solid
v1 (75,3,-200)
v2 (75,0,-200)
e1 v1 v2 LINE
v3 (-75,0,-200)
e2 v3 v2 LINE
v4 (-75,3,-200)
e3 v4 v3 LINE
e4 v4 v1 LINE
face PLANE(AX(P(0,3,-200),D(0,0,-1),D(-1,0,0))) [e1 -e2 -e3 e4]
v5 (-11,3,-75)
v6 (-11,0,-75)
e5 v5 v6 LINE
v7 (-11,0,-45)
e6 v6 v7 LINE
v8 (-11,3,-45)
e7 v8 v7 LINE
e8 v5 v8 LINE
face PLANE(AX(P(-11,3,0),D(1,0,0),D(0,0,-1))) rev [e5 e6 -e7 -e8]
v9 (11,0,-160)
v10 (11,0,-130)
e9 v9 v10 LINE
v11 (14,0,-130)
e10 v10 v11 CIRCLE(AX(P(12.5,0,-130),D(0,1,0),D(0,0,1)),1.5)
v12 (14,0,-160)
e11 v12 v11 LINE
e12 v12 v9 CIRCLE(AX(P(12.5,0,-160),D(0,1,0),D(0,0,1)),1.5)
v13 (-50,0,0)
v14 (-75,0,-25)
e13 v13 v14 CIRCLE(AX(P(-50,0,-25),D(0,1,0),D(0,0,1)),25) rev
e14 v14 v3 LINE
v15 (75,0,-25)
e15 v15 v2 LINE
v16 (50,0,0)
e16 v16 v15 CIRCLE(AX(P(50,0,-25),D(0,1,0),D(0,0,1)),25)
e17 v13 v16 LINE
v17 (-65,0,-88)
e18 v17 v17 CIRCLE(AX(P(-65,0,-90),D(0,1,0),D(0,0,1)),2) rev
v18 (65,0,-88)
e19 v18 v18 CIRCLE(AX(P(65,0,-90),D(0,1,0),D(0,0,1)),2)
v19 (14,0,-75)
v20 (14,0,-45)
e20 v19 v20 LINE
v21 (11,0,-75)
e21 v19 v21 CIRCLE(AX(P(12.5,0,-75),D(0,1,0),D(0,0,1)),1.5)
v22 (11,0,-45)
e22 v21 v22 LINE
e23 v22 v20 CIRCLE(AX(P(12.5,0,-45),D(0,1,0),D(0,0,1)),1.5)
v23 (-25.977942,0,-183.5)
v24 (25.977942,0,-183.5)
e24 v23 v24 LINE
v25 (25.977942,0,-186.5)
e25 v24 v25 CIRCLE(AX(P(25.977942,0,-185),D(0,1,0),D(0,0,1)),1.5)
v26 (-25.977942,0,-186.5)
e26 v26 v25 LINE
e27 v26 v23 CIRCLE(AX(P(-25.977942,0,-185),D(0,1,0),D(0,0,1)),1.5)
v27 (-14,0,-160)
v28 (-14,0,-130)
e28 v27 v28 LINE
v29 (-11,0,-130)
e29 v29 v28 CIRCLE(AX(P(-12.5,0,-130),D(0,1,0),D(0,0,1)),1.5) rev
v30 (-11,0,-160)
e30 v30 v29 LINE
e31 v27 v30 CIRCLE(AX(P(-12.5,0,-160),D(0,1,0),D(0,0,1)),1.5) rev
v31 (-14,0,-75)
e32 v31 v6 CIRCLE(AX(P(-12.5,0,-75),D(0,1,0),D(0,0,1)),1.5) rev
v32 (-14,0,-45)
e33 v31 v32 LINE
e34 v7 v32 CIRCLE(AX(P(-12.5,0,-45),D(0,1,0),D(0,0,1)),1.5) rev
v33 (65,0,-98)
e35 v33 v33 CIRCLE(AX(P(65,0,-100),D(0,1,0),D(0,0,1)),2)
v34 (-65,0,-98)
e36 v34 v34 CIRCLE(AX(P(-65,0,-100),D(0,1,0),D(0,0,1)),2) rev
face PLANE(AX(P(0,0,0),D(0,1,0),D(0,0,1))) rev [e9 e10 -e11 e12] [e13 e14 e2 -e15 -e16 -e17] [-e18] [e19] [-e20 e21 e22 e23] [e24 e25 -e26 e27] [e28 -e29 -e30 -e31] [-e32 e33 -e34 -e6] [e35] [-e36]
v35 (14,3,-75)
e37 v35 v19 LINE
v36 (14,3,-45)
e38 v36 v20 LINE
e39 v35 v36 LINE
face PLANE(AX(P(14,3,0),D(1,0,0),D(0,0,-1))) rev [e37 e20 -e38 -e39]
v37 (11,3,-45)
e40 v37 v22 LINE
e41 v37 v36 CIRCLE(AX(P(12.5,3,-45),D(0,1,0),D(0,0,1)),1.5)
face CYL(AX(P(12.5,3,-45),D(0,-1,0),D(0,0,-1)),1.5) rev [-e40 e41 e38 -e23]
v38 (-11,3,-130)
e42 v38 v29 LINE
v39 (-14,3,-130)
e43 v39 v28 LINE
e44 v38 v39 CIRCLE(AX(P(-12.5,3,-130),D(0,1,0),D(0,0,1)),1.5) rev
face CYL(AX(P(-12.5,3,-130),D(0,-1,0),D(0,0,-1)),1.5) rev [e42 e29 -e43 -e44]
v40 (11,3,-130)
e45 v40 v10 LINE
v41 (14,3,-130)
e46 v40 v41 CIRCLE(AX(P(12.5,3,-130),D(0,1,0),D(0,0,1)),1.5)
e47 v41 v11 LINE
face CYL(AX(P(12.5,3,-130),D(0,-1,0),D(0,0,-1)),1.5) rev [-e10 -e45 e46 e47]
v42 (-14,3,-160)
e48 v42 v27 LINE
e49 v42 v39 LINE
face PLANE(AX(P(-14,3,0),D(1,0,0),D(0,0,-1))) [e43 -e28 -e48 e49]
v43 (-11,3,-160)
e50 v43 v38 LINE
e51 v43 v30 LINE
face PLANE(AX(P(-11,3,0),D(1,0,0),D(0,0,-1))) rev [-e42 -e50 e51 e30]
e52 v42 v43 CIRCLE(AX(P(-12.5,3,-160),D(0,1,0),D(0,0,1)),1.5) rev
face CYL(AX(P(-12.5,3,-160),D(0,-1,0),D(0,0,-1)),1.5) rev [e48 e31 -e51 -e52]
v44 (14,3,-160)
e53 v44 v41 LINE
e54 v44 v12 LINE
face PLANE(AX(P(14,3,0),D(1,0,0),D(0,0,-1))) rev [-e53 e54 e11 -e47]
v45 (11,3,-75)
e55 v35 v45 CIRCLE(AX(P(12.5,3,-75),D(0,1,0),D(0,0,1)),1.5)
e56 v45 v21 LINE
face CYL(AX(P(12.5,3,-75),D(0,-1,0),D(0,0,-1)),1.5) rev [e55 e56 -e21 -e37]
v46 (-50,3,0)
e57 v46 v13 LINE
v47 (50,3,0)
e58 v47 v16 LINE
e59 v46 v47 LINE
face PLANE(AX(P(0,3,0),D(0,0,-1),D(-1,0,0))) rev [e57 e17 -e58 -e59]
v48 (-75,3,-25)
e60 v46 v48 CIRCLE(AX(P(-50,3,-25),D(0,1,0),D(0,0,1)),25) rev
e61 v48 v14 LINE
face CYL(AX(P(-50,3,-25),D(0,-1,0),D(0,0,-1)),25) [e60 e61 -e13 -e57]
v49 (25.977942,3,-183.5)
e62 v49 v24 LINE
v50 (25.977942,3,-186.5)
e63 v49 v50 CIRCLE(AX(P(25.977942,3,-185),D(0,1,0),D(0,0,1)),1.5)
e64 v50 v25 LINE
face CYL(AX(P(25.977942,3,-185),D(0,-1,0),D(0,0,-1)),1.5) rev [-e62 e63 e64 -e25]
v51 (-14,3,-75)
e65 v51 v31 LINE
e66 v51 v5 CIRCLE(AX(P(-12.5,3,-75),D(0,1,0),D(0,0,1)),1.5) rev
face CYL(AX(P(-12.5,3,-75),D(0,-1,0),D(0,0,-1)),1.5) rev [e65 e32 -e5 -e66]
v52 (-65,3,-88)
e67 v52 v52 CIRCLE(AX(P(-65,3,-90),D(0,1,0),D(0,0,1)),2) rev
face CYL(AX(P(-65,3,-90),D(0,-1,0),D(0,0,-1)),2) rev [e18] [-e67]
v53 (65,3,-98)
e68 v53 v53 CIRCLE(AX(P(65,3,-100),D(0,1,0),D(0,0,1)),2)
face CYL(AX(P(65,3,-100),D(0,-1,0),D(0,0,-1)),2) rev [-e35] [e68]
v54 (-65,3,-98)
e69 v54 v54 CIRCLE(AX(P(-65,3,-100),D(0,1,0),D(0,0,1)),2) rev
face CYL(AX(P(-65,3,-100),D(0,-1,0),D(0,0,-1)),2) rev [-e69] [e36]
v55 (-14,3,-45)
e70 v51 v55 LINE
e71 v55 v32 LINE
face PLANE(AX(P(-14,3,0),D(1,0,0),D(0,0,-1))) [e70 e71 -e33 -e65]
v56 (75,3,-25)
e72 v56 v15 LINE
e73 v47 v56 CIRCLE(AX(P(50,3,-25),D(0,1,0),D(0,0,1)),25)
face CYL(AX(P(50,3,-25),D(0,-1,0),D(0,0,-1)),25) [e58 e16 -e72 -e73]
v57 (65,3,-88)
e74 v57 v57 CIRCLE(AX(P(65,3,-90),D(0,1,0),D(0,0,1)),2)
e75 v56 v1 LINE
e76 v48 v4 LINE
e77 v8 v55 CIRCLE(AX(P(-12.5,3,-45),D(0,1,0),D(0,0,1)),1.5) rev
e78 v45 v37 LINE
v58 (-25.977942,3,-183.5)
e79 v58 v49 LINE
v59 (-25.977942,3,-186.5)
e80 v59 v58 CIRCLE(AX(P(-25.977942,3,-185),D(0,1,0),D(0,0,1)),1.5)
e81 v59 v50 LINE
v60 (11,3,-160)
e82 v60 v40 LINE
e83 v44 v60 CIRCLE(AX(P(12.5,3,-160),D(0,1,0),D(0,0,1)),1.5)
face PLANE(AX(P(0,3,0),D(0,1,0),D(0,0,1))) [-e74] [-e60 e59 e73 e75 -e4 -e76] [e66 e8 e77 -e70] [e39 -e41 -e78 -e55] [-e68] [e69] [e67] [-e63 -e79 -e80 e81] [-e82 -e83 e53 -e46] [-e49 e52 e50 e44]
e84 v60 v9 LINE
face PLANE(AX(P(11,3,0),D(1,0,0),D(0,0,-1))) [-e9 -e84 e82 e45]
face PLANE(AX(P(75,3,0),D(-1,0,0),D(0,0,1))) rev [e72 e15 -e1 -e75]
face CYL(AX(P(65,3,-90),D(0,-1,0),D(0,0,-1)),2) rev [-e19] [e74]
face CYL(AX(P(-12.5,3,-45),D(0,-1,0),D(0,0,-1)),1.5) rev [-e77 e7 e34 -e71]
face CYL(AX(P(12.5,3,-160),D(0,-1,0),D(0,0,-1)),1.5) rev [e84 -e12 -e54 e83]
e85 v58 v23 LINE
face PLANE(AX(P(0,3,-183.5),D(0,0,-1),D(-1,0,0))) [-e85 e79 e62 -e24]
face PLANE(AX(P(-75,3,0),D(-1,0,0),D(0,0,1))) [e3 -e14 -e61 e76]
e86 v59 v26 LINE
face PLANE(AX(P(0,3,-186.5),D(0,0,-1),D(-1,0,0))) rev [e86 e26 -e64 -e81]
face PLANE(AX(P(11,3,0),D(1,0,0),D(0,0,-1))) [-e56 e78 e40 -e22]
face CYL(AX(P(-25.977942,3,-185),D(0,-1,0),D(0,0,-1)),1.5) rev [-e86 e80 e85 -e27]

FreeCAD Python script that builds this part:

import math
import FreeCAD as App
import Part
import Sketcher
from FreeCAD import Vector
Q = App.Units.Quantity

doc = App.newDocument("Part")
params = doc.addObject("Spreadsheet::Sheet", "Params")
for row, (alias, value) in enumerate([
    ("sketch1_diameter", "4 mm"),
    ("sketch1_radius", "25 mm"),
    ("sketch1_radius2", "1.5 mm"),
    ("sketch1_width", "100 mm"),
    ("sketch1_height", "175 mm"),
    ("pad1_length", "3 mm"),
], start=1):
    params.set(f"A{row}", alias)
    params.set(f"B{row}", "=" + value)
    params.setAlias(f"B{row}", alias)

body = doc.addObject("PartDesign::Body", "Body")

sketch1 = body.newObject("Sketcher::SketchObject", "Sketch")
sketch1.AttachmentSupport = (doc.getObject("XZ_Plane"), [""])
sketch1.MapMode = "FlatFace"
sketch1.addGeometry([
    Part.LineSegment(Vector(-50, 0, 0), Vector(50, 0, 0)),
    Part.ArcOfCircle(Part.Circle(Vector(50, -25, 0), Vector(0, 0, 1), 25), math.radians(0), math.radians(90)),
    Part.LineSegment(Vector(75, -25, 0), Vector(75, -200, 0)),
    Part.LineSegment(Vector(75, -200, 0), Vector(-75, -200, 0)),
    Part.LineSegment(Vector(-75, -200, 0), Vector(-75, -25, 0)),
    Part.ArcOfCircle(Part.Circle(Vector(-50, -25, 0), Vector(0, 0, 1), 25), math.radians(90), math.radians(180)),
    Part.LineSegment(Vector(-14, -45, 0), Vector(-14, -75, 0)),
    Part.ArcOfCircle(Part.Circle(Vector(-12.5, -75, 0), Vector(0, 0, 1), 1.5), math.radians(180), math.radians(360)),
    Part.LineSegment(Vector(-11, -75, 0), Vector(-11, -45, 0)),
    Part.ArcOfCircle(Part.Circle(Vector(-12.5, -45, 0), Vector(0, 0, 1), 1.5), math.radians(0), math.radians(180)),
    Part.Circle(Vector(-65, -90, 0), Vector(0, 0, 1), 2),
    Part.Circle(Vector(-65, -100, 0), Vector(0, 0, 1), 2),
    Part.ArcOfCircle(Part.Circle(Vector(12.5, -75, 0), Vector(0, 0, 1), 1.5), math.radians(180), math.radians(360)),
    Part.LineSegment(Vector(14, -75, 0), Vector(14, -45, 0)),
    Part.ArcOfCircle(Part.Circle(Vector(12.5, -45, 0), Vector(0, 0, 1), 1.5), math.radians(0), math.radians(180)),
    Part.LineSegment(Vector(11, -45, 0), Vector(11, -75, 0)),
    Part.Circle(Vector(65, -90, 0), Vector(0, 0, 1), 2),
    Part.Circle(Vector(65, -100, 0), Vector(0, 0, 1), 2),
    Part.LineSegment(Vector(-14, -130, 0), Vector(-14, -160, 0)),
    Part.ArcOfCircle(Part.Circle(Vector(-12.5, -160, 0), Vector(0, 0, 1), 1.5), math.radians(180), math.radians(360)),
    Part.LineSegment(Vector(-11, -160, 0), Vector(-11, -130, 0)),
    Part.ArcOfCircle(Part.Circle(Vector(-12.5, -130, 0), Vector(0, 0, 1), 1.5), math.radians(0), math.radians(180)),
    Part.ArcOfCircle(Part.Circle(Vector(12.5, -160, 0), Vector(0, 0, 1), 1.5), math.radians(180), math.radians(360)),
    Part.LineSegment(Vector(14, -160, 0), Vector(14, -130, 0)),
    Part.ArcOfCircle(Part.Circle(Vector(12.5, -130, 0), Vector(0, 0, 1), 1.5), math.radians(0), math.radians(180)),
    Part.LineSegment(Vector(11, -130, 0), Vector(11, -160, 0)),
    Part.ArcOfCircle(Part.Circle(Vector(-26, -185, 0), Vector(0, 0, 1), 1.5), math.radians(90), math.radians(270)),
    Part.LineSegment(Vector(-26, -186.5, 0), Vector(26, -186.5, 0)),
    Part.ArcOfCircle(Part.Circle(Vector(26, -185, 0), Vector(0, 0, 1), 1.5), math.radians(-90), math.radians(90)),
    Part.LineSegment(Vector(26, -183.5, 0), Vector(-26, -183.5, 0)),
], False)
sketch1.addConstraint([
    Sketcher.Constraint("Tangent", 0, 2, 1, 2),
    Sketcher.Constraint("Tangent", 1, 1, 2, 1),
    Sketcher.Constraint("Coincident", 2, 2, 3, 1),
    Sketcher.Constraint("Coincident", 3, 2, 4, 1),
    Sketcher.Constraint("Tangent", 4, 2, 5, 2),
    Sketcher.Constraint("Tangent", 5, 1, 0, 1),
    Sketcher.Constraint("Tangent", 6, 2, 7, 1),
    Sketcher.Constraint("Tangent", 7, 2, 8, 1),
    Sketcher.Constraint("Tangent", 8, 2, 9, 1),
    Sketcher.Constraint("Tangent", 9, 2, 6, 1),
    Sketcher.Constraint("Tangent", 12, 2, 13, 1),
    Sketcher.Constraint("Tangent", 13, 2, 14, 1),
    Sketcher.Constraint("Tangent", 14, 2, 15, 1),
    Sketcher.Constraint("Tangent", 15, 2, 12, 1),
    Sketcher.Constraint("Tangent", 18, 2, 19, 1),
    Sketcher.Constraint("Tangent", 19, 2, 20, 1),
    Sketcher.Constraint("Tangent", 20, 2, 21, 1),
    Sketcher.Constraint("Tangent", 21, 2, 18, 1),
    Sketcher.Constraint("Tangent", 22, 2, 23, 1),
    Sketcher.Constraint("Tangent", 23, 2, 24, 1),
    Sketcher.Constraint("Tangent", 24, 2, 25, 1),
    Sketcher.Constraint("Tangent", 25, 2, 22, 1),
    Sketcher.Constraint("Tangent", 26, 2, 27, 1),
    Sketcher.Constraint("Tangent", 27, 2, 28, 1),
    Sketcher.Constraint("Tangent", 28, 2, 29, 1),
    Sketcher.Constraint("Tangent", 29, 2, 26, 1),
    Sketcher.Constraint("Horizontal", 0),
    Sketcher.Constraint("Vertical", 2),
    Sketcher.Constraint("Horizontal", 3),
    Sketcher.Constraint("Vertical", 4),
    Sketcher.Constraint("Vertical", 6),
    Sketcher.Constraint("Vertical", 8),
    Sketcher.Constraint("Vertical", 13),
    Sketcher.Constraint("Vertical", 15),
    Sketcher.Constraint("Vertical", 18),
    Sketcher.Constraint("Vertical", 20),
    Sketcher.Constraint("Vertical", 23),
    Sketcher.Constraint("Vertical", 25),
    Sketcher.Constraint("Horizontal", 27),
    Sketcher.Constraint("Horizontal", 29),
    Sketcher.Constraint("Equal", 1, 5),
    Sketcher.Constraint("Equal", 10, 11),
    Sketcher.Constraint("Equal", 9, 12),
    Sketcher.Constraint("Equal", 11, 16),
    Sketcher.Constraint("Equal", 16, 17),
    Sketcher.Constraint("Equal", 14, 19),
    Sketcher.Constraint("Equal", 21, 22),
    Sketcher.Constraint("Equal", 24, 26),
    Sketcher.Constraint("Symmetric", 0, 2, 5, 1, -1, 1),
    Sketcher.Constraint("Symmetric", 7, 3, 12, 3, -2),
    Sketcher.Constraint("Symmetric", 10, 3, 16, 3, -2),
    Sketcher.Constraint("Symmetric", 11, 3, 17, 3, -2),
    Sketcher.Constraint("Symmetric", 19, 3, 22, 3, -2),
    Sketcher.Constraint("Horizontal", 9, 3, 14, 3),
    Sketcher.Constraint("Horizontal", 21, 3, 24, 3),
    Sketcher.Constraint("Vertical", 10, 3, 11, 3),
    Sketcher.Constraint("Vertical", 9, 3, 19, 3),
    Sketcher.Constraint("Equal", 15, 18),
    Sketcher.Constraint("Diameter", 10, Q("4 mm")),
    Sketcher.Constraint("Radius", 1, Q("25 mm")),
    Sketcher.Constraint("Radius", 7, Q("1.5 mm")),
    Sketcher.Constraint("DistanceX", 0, 1, 0, 2, Q("100 mm")),
    Sketcher.Constraint("DistanceY", 2, 2, 2, 1, Q("175 mm")),
    Sketcher.Constraint("DistanceY", 6, 2, 6, 1, Q("30 mm")),
    Sketcher.Constraint("DistanceY", 7, 3, -1, 1, Q("75 mm")),
    Sketcher.Constraint("DistanceX", 10, 3, -1, 1, Q("65 mm")),
    Sketcher.Constraint("DistanceY", 10, 3, -1, 1, Q("90 mm")),
    Sketcher.Constraint("DistanceY", 11, 3, -1, 1, Q("100 mm")),
    Sketcher.Constraint("DistanceY", 19, 3, -1, 1, Q("160 mm")),
    Sketcher.Constraint("DistanceY", 26, 3, -1, 1, Q("185 mm")),
    Sketcher.Constraint("DistanceX", 6, 2, -1, 1, Q("14 mm")),
    Sketcher.Constraint("DistanceX", 27, 1, 27, 2, Q("51.955884 mm")),
    Sketcher.Constraint("DistanceX", 26, 3, -1, 1, Q("25.977942 mm")),
])
sketch1.setExpression("Constraints[58]", "Params.sketch1_diameter")
sketch1.setExpression("Constraints[59]", "Params.sketch1_radius")
sketch1.setExpression("Constraints[60]", "Params.sketch1_radius2")
sketch1.setExpression("Constraints[61]", "Params.sketch1_width")
sketch1.setExpression("Constraints[62]", "Params.sketch1_height")
pad1 = body.newObject("PartDesign::Pad", "Pad")
pad1.Profile = sketch1
pad1.setExpression("Length", "Params.pad1_length")
pad1.Reversed = True

doc.recompute()
